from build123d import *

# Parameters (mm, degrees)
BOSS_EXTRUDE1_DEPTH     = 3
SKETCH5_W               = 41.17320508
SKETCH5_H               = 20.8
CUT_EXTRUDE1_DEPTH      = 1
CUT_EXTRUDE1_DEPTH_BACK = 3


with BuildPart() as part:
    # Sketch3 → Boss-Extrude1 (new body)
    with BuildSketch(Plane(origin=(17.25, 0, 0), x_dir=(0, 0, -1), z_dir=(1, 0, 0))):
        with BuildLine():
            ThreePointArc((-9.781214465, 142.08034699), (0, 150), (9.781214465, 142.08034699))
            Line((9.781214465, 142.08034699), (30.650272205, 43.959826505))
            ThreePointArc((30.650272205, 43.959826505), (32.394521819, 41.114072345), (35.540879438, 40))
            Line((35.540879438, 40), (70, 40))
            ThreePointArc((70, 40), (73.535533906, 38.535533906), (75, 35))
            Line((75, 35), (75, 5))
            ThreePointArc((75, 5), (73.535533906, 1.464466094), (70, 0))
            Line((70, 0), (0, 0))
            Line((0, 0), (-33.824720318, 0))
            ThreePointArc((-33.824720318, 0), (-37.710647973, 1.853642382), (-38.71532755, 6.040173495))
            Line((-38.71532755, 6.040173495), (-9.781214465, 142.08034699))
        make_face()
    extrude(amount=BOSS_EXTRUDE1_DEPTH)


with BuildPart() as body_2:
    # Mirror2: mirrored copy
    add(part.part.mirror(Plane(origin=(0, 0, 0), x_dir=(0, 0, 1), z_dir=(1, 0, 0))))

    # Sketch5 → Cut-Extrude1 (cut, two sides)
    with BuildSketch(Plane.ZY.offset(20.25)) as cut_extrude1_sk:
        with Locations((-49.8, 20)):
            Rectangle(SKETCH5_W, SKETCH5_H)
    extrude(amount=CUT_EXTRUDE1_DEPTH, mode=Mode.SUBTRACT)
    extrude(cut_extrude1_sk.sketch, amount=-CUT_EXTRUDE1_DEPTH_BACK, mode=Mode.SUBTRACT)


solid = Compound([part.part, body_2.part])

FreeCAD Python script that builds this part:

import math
import FreeCAD as App
import Part
import Sketcher

V = App.Vector
Q = App.Units.Quantity

doc = App.newDocument("Part")
body = doc.addObject("PartDesign::Body", "Body")

sketch1 = body.newObject("Sketcher::SketchObject", "Sketch")
sketch1.AttachmentSupport = (doc.getObject("YZ_Plane"), [""])
sketch1.MapMode = "FlatFace"
sketch1.AttachmentOffset = App.Placement(V(0, 0, 17.25), App.Rotation())
sketch1.addGeometry([
    Part.ArcOfCircle(Part.Circle(V(140, 0, 0), V(0, 0, 1), 10), math.radians(-78), math.radians(78)),
    Part.LineSegment(V(142.1, 9.8, 0), V(6, 38.7, 0)),
    Part.ArcOfCircle(Part.Circle(V(5, 33.8, 0), V(0, 0, 1), 5), math.radians(78), math.radians(180)),
    Part.LineSegment(V(0, 33.8, 0), V(0, -70, 0)),
    Part.ArcOfCircle(Part.Circle(V(5, -70, 0), V(0, 0, 1), 5), math.radians(180), math.radians(270)),
    Part.LineSegment(V(5, -75, 0), V(35, -75, 0)),
    Part.ArcOfCircle(Part.Circle(V(35, -70, 0), V(0, 0, 1), 5), math.radians(-90), math.radians(0)),
    Part.LineSegment(V(40, -70, 0), V(40, -35.5, 0)),
    Part.ArcOfCircle(Part.Circle(V(45, -35.5, 0), V(0, 0, 1), 5), math.radians(102), math.radians(180)),
    Part.LineSegment(V(44, -30.7, 0), V(142.1, -9.8, 0)),
], False)
sketch1.addConstraint([
    Sketcher.Constraint("Tangent", 0, 2, 1, 1),
    Sketcher.Constraint("Tangent", 1, 2, 2, 1),
    Sketcher.Constraint("Tangent", 2, 2, 3, 1),
    Sketcher.Constraint("Tangent", 3, 2, 4, 1),
    Sketcher.Constraint("Tangent", 4, 2, 5, 1),
    Sketcher.Constraint("Tangent", 5, 2, 6, 1),
    Sketcher.Constraint("Tangent", 6, 2, 7, 1),
    Sketcher.Constraint("Tangent", 7, 2, 8, 2),
    Sketcher.Constraint("Tangent", 8, 1, 9, 1),
    Sketcher.Constraint("Tangent", 9, 2, 0, 1),
    Sketcher.Constraint("Vertical", 3),
    Sketcher.Constraint("Horizontal", 5),
    Sketcher.Constraint("Vertical", 7),
    Sketcher.Constraint("Equal", 2, 4),
    Sketcher.Constraint("Equal", 4, 6),
    Sketcher.Constraint("Equal", 6, 8),
    Sketcher.Constraint("Symmetric", 0, 2, 9, 2, -1),
    Sketcher.Constraint("PointOnObject", 2, 2, -2),
    Sketcher.Constraint("Radius", 0, Q("10 mm")),
    Sketcher.Constraint("Radius", 2, Q("5 mm")),
    Sketcher.Constraint("DistanceX", 5, 1, 5, 2, Q("30 mm")),
    Sketcher.Constraint("DistanceX", -1, 1, 0, 3, Q("140 mm")),
    Sketcher.Constraint("DistanceY", 4, 3, -1, 1, Q("70 mm")),
    Sketcher.Constraint("DistanceY", 3, 2, 3, 1, Q("103.82472 mm")),
])
pad1 = body.newObject("PartDesign::Pad", "Pad")
pad1.Profile = sketch1
pad1.Length = 3
body2 = doc.addObject("PartDesign::Body", "Body001")
doc.recompute()

mirroring = doc.addObject("Part::Mirroring", "Mirroring")
mirroring.Source = body
mirroring.Base = V(0, 0, 0)
mirroring.Normal = V(1, 0, 0)
body2.BaseFeature = mirroring
doc.recompute()

sketch2 = body2.newObject("Sketcher::SketchObject", "Sketch001")
sketch2.AttachmentSupport = (doc.getObject("YZ_Plane001"), [""])
sketch2.MapMode = "FlatFace"
sketch2.AttachmentOffset = App.Placement(V(0, 0, -20.25), App.Rotation())
sketch2.addGeometry([
    Part.LineSegment(V(30, -70, 0), V(10, -70, 0)),
    Part.LineSegment(V(10, -70, 0), V(10, -29, 0)),
    Part.LineSegment(V(10, -29, 0), V(30, -29, 0)),
    Part.LineSegment(V(30, -29, 0), V(30, -70, 0)),
], False)
sketch2.addConstraint([
    Sketcher.Constraint("Coincident", 0, 2, 1, 1),
    Sketcher.Constraint("Coincident", 1, 2, 2, 1),
    Sketcher.Constraint("Coincident", 2, 2, 3, 1),
    Sketcher.Constraint("Coincident", 3, 2, 0, 1),
    Sketcher.Constraint("Horizontal", 0),
    Sketcher.Constraint("Vertical", 1),
    Sketcher.Constraint("Horizontal", 2),
    Sketcher.Constraint("Vertical", 3),
    Sketcher.Constraint("DistanceX", 0, 2, 0, 1, Q("20.8 mm")),
    Sketcher.Constraint("DistanceX", -1, 1, 0, 2, Q("9.6 mm")),
    Sketcher.Constraint("DistanceY", 1, 1, 1, 2, Q("41.173205 mm")),
    Sketcher.Constraint("DistanceY", 0, 2, -1, 1, Q("70.386603 mm")),
])
pocket1 = body2.newObject("PartDesign::Pocket", "Pocket")
pocket1.Profile = sketch2
pocket1.Type = "ThroughAll"
pocket1.Midplane = True
mirroring.Visibility = False

doc.recompute()
